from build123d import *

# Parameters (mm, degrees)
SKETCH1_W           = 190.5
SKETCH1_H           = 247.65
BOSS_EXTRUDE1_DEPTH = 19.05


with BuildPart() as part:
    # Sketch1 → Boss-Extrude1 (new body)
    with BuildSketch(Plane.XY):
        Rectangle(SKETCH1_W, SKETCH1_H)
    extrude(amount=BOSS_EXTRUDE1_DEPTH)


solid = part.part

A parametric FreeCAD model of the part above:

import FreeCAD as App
import Part
import Sketcher
Q = App.Units.Quantity

doc = App.newDocument("Part")
body = doc.addObject("PartDesign::Body", "Body")

# Sketch on XY plane
sketch1 = doc.addObject("Sketcher::SketchObject", "Sketch")
body.addObject(sketch1)
sketch1.AttachmentSupport = (doc.XY_Plane, [""])
sketch1.MapMode = "FlatFace"
sketch1.addGeometry([
    Part.LineSegment(App.Vector(-95, 124, 0), App.Vector(-95, -124, 0)),
    Part.LineSegment(App.Vector(-95, -124, 0), App.Vector(95, -124, 0)),
    Part.LineSegment(App.Vector(95, -124, 0), App.Vector(95, 124, 0)),
    Part.LineSegment(App.Vector(95, 124, 0), App.Vector(-95, 124, 0)),
], False)
sketch1.addConstraint([
    Sketcher.Constraint("Coincident", 0, 2, 1, 1),
    Sketcher.Constraint("Coincident", 1, 2, 2, 1),
    Sketcher.Constraint("Coincident", 2, 2, 3, 1),
    Sketcher.Constraint("Coincident", 3, 2, 0, 1),
    Sketcher.Constraint("Vertical", 0),
    Sketcher.Constraint("Horizontal", 1),
    Sketcher.Constraint("Vertical", 2),
    Sketcher.Constraint("Horizontal", 3),
    Sketcher.Constraint("Symmetric", 0, 2, 2, 2, -1, 1),
    Sketcher.Constraint("DistanceX", 1, 1, 1, 2, Q("7.5 in")),
    Sketcher.Constraint("DistanceY", 0, 2, 0, 1, Q("9.75 in")),
])
pad1 = doc.addObject("PartDesign::Pad", "Pad")
body.addObject(pad1)
pad1.Profile = sketch1
pad1.Length = Q("0.75 in")

doc.recompute()
